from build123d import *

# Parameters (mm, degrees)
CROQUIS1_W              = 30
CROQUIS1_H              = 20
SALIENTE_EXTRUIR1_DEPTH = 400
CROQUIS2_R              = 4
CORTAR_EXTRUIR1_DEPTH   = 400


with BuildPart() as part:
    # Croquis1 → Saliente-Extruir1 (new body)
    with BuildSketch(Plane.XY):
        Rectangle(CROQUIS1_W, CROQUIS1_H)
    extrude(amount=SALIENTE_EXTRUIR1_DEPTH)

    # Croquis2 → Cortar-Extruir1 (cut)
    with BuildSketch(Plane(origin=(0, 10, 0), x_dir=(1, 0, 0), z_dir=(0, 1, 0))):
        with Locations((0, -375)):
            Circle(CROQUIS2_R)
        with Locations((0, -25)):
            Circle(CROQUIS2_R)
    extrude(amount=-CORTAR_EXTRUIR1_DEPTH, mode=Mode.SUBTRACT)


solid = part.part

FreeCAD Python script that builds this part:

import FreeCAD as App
import Part
import Sketcher

V = App.Vector


def add_polygon(sketch, points):
    """Adds a closed chain of lines whose ends are joined by coincident constraints."""
    first, n = sketch.GeometryCount, len(points)
    for a, b in zip(points, points[1:] + points[:1]):
        sketch.addGeometry(Part.LineSegment(App.Vector(*a, 0), App.Vector(*b, 0)), False)
    for i in range(n):
        sketch.addConstraint(Sketcher.Constraint("Coincident", first + i, 2, first + (i + 1) % n, 1))

doc = App.newDocument("Part")
body = doc.addObject("PartDesign::Body", "Body")

# Sketch on XY plane
sketch1 = body.newObject("Sketcher::SketchObject", "Sketch")
sketch1.AttachmentSupport = (doc.getObject("XY_Plane"), [""])
sketch1.MapMode = "FlatFace"
add_polygon(sketch1, [(-15, 10), (-15, -10), (15, -10), (15, 10)])  # lines 0-3
sketch1.addConstraint(Sketcher.Constraint("Vertical", 0))
sketch1.addConstraint(Sketcher.Constraint("Horizontal", 1))
sketch1.addConstraint(Sketcher.Constraint("Vertical", 2))
sketch1.addConstraint(Sketcher.Constraint("Horizontal", 3))
sketch1.addConstraint(Sketcher.Constraint("Symmetric", 0, 2, 2, 2, -1, 1))
sketch1.addConstraint(Sketcher.Constraint("DistanceX", 1, 1, 1, 2, 30.0))
sketch1.addConstraint(Sketcher.Constraint("DistanceY", 0, 2, 0, 1, 20.0))
pad1 = body.newObject("PartDesign::Pad", "Pad")
pad1.Profile = sketch1
pad1.Length = 400

# Sketch on XZ plane
sketch2 = body.newObject("Sketcher::SketchObject", "Sketch001")
sketch2.AttachmentSupport = (doc.getObject("XZ_Plane"), [""])
sketch2.MapMode = "FlatFace"
sketch2.AttachmentOffset = App.Placement(V(0, 0, -10), App.Rotation())
sketch2.addGeometry(Part.Circle(V(0, 375, 0), V(0, 0, 1), 4), False)
sketch2.addGeometry(Part.Circle(V(0, 25, 0), V(0, 0, 1), 4), False)
sketch2.addConstraint(Sketcher.Constraint("Equal", 0, 1))
sketch2.addConstraint(Sketcher.Constraint("PointOnObject", 0, 3, -2))
sketch2.addConstraint(Sketcher.Constraint("PointOnObject", 1, 3, -2))
sketch2.addConstraint(Sketcher.Constraint("Diameter", 0, 8.0))
sketch2.addConstraint(Sketcher.Constraint("DistanceY", -1, 1, 0, 3, 375.0))
sketch2.addConstraint(Sketcher.Constraint("DistanceY", -1, 1, 1, 3, 25.0))
pocket1 = body.newObject("PartDesign::Pocket", "Pocket")
pocket1.Profile = sketch2
pocket1.Length = 400
pocket1.Reversed = True

doc.recompute()
